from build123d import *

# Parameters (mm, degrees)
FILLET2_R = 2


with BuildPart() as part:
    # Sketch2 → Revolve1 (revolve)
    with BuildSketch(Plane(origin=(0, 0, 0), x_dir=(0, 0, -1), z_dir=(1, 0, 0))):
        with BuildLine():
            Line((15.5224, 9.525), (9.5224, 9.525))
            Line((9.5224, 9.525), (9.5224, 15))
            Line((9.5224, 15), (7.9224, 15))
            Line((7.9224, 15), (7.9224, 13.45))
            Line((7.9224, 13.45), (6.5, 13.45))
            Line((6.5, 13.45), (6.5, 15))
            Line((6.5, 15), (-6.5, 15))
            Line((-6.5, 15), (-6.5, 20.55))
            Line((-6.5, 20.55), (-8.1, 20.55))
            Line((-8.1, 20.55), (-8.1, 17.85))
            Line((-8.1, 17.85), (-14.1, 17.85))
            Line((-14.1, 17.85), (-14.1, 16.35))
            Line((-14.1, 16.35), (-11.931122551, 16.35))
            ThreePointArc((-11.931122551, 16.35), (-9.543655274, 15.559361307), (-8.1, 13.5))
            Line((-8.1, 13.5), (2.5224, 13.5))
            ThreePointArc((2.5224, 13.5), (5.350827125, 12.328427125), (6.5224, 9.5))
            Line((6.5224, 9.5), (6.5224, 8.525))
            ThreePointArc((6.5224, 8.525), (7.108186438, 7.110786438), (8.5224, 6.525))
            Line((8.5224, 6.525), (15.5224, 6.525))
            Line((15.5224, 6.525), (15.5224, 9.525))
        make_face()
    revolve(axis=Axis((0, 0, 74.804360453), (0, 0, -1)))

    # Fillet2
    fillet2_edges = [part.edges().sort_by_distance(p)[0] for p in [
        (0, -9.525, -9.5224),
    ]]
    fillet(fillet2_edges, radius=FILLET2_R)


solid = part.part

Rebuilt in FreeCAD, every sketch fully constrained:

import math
import FreeCAD as App
import Part
import Sketcher
from FreeCAD import Vector
Q = App.Units.Quantity


def edges_at(feature, points):
    """Names of the edges that pass closest to the given points."""
    edges = feature.Shape.Edges
    near = lambda p: min(range(len(edges)), key=lambda i: edges[i].distToShape(Part.Vertex(*p))[0])
    return sorted({f"Edge{near(p) + 1}" for p in points})

doc = App.newDocument("Part")
params = doc.addObject("Spreadsheet::Sheet", "Params")
for row, (alias, value) in enumerate([
    ("sketch1_radius", "4 mm"),
    ("sketch1_radius2", "2 mm"),
    ("sketch1_width", "3 mm"),
    ("sketch1_height", "6 mm"),
    ("sketch1_height2", "13 mm"),
    ("revolution_angle", "360 deg"),
    ("fillet_radius", "2 mm"),
], start=1):
    params.set(f"A{row}", alias)
    params.set(f"B{row}", "=" + value)
    params.setAlias(f"B{row}", alias)

body = doc.addObject("PartDesign::Body", "Body")

# Sketch on YZ plane
sketch1 = body.newObject("Sketcher::SketchObject", "Sketch")
sketch1.AttachmentSupport = (doc.getObject("YZ_Plane"), [""])
sketch1.MapMode = "FlatFace"
sketch1.addGeometry(Part.LineSegment(Vector(9.5, -15.5, 0), Vector(9.5, -9.5, 0)), False)
sketch1.addGeometry(Part.LineSegment(Vector(9.5, -9.5, 0), Vector(15, -9.5, 0)), False)
sketch1.addGeometry(Part.LineSegment(Vector(15, -9.5, 0), Vector(15, -7.9, 0)), False)
sketch1.addGeometry(Part.LineSegment(Vector(15, -7.9, 0), Vector(13.4, -7.9, 0)), False)
sketch1.addGeometry(Part.LineSegment(Vector(13.4, -7.9, 0), Vector(13.4, -6.5, 0)), False)
sketch1.addGeometry(Part.LineSegment(Vector(13.4, -6.5, 0), Vector(15, -6.5, 0)), False)
sketch1.addGeometry(Part.LineSegment(Vector(15, -6.5, 0), Vector(15, 6.5, 0)), False)
sketch1.addGeometry(Part.LineSegment(Vector(15, 6.5, 0), Vector(20.6, 6.5, 0)), False)
sketch1.addGeometry(Part.LineSegment(Vector(20.6, 6.5, 0), Vector(20.6, 8.1, 0)), False)
sketch1.addGeometry(Part.LineSegment(Vector(20.6, 8.1, 0), Vector(17.9, 8.1, 0)), False)
sketch1.addGeometry(Part.LineSegment(Vector(17.9, 8.1, 0), Vector(17.9, 14.1, 0)), False)
sketch1.addGeometry(Part.LineSegment(Vector(17.9, 14.1, 0), Vector(16.4, 14.1, 0)), False)
sketch1.addGeometry(Part.LineSegment(Vector(16.4, 14.1, 0), Vector(16.4, 11.9, 0)), False)
sketch1.addGeometry(Part.ArcOfCircle(Part.Circle(Vector(12.3, 11.9, 0), Vector(0, 0, 1), 4), math.radians(-73), math.radians(0)), False)
sketch1.addGeometry(Part.LineSegment(Vector(13.5, 8.1, 0), Vector(13.5, -2.5, 0)), False)
sketch1.addGeometry(Part.ArcOfCircle(Part.Circle(Vector(9.5, -2.5, 0), Vector(0, 0, 1), 4), math.radians(-90), math.radians(0)), False)
sketch1.addGeometry(Part.LineSegment(Vector(9.5, -6.5, 0), Vector(8.5, -6.5, 0)), False)
sketch1.addGeometry(Part.ArcOfCircle(Part.Circle(Vector(8.5, -8.5, 0), Vector(0, 0, 1), 2), math.radians(90), math.radians(180)), False)
sketch1.addGeometry(Part.LineSegment(Vector(6.5, -8.5, 0), Vector(6.5, -15.5, 0)), False)
sketch1.addGeometry(Part.LineSegment(Vector(6.5, -15.5, 0), Vector(9.5, -15.5, 0)), False)
sketch1.addConstraint(Sketcher.Constraint("Coincident", 0, 2, 1, 1))
sketch1.addConstraint(Sketcher.Constraint("Coincident", 1, 2, 2, 1))
sketch1.addConstraint(Sketcher.Constraint("Coincident", 2, 2, 3, 1))
sketch1.addConstraint(Sketcher.Constraint("Coincident", 3, 2, 4, 1))
sketch1.addConstraint(Sketcher.Constraint("Coincident", 4, 2, 5, 1))
sketch1.addConstraint(Sketcher.Constraint("Coincident", 5, 2, 6, 1))
sketch1.addConstraint(Sketcher.Constraint("Coincident", 6, 2, 7, 1))
sketch1.addConstraint(Sketcher.Constraint("Coincident", 7, 2, 8, 1))
sketch1.addConstraint(Sketcher.Constraint("Coincident", 8, 2, 9, 1))
sketch1.addConstraint(Sketcher.Constraint("Coincident", 9, 2, 10, 1))
sketch1.addConstraint(Sketcher.Constraint("Coincident", 10, 2, 11, 1))
sketch1.addConstraint(Sketcher.Constraint("Coincident", 11, 2, 12, 1))
sketch1.addConstraint(Sketcher.Constraint("Tangent", 12, 2, 13, 2))
sketch1.addConstraint(Sketcher.Constraint("Coincident", 13, 1, 14, 1))
sketch1.addConstraint(Sketcher.Constraint("Tangent", 14, 2, 15, 2))
sketch1.addConstraint(Sketcher.Constraint("Tangent", 15, 1, 16, 1))
sketch1.addConstraint(Sketcher.Constraint("Tangent", 16, 2, 17, 1))
sketch1.addConstraint(Sketcher.Constraint("Tangent", 17, 2, 18, 1))
sketch1.addConstraint(Sketcher.Constraint("Coincident", 18, 2, 19, 1))
sketch1.addConstraint(Sketcher.Constraint("Coincident", 19, 2, 0, 1))
sketch1.addConstraint(Sketcher.Constraint("Vertical", 0))
sketch1.addConstraint(Sketcher.Constraint("Horizontal", 1))
sketch1.addConstraint(Sketcher.Constraint("Vertical", 2))
sketch1.addConstraint(Sketcher.Constraint("Horizontal", 3))
sketch1.addConstraint(Sketcher.Constraint("Vertical", 4))
sketch1.addConstraint(Sketcher.Constraint("Horizontal", 5))
sketch1.addConstraint(Sketcher.Constraint("Vertical", 6))
sketch1.addConstraint(Sketcher.Constraint("Horizontal", 7))
sketch1.addConstraint(Sketcher.Constraint("Vertical", 8))
sketch1.addConstraint(Sketcher.Constraint("Horizontal", 9))
sketch1.addConstraint(Sketcher.Constraint("Vertical", 10))
sketch1.addConstraint(Sketcher.Constraint("Horizontal", 11))
sketch1.addConstraint(Sketcher.Constraint("Vertical", 12))
sketch1.addConstraint(Sketcher.Constraint("Vertical", 14))
sketch1.addConstraint(Sketcher.Constraint("Horizontal", 16))
sketch1.addConstraint(Sketcher.Constraint("Vertical", 18))
sketch1.addConstraint(Sketcher.Constraint("Horizontal", 19))
sketch1.addConstraint(Sketcher.Constraint("Equal", 13, 15))
sketch1.addConstraint(Sketcher.Constraint("Horizontal", 9, 2, 13, 1))
sketch1.addConstraint(Sketcher.Constraint("Vertical", 2, 2, 5, 2))
sketch1.addConstraint(Sketcher.Constraint("Equal", 2, 8))
sketch1.addConstraint(Sketcher.Constraint("Equal", 0, 10))
sketch1.addConstraint(Sketcher.Constraint("Radius", 13, Q("4 mm")))
sketch1.addConstraint(Sketcher.Constraint("Radius", 17, Q("2 mm")))
sketch1.addConstraint(Sketcher.Constraint("DistanceX", 19, 1, 19, 2, Q("3 mm")))
sketch1.addConstraint(Sketcher.Constraint("DistanceY", 0, 1, 0, 2, Q("6 mm")))
sketch1.addConstraint(Sketcher.Constraint("DistanceY", 6, 1, 6, 2, Q("13 mm")))
sketch1.addConstraint(Sketcher.Constraint("DistanceY", 18, 2, 18, 1, Q("7 mm")))
sketch1.addConstraint(Sketcher.Constraint("DistanceX", 9, 2, 9, 1, Q("2.7 mm")))
sketch1.addConstraint(Sketcher.Constraint("DistanceX", 11, 2, 11, 1, Q("1.5 mm")))
sketch1.addConstraint(Sketcher.Constraint("DistanceY", 2, 1, 2, 2, Q("1.6 mm")))
sketch1.addConstraint(Sketcher.Constraint("DistanceX", -1, 1, 1, 2, Q("15 mm")))
sketch1.addConstraint(Sketcher.Constraint("DistanceX", 3, 2, 3, 1, Q("1.55 mm")))
sketch1.addConstraint(Sketcher.Constraint("DistanceX", 7, 1, 7, 2, Q("5.55 mm")))
sketch1.addConstraint(Sketcher.Constraint("DistanceX", -1, 1, 15, 3, Q("9.5 mm")))
sketch1.addConstraint(Sketcher.Constraint("DistanceY", 4, 2, -1, 1, Q("6.5 mm")))
sketch1.addConstraint(Sketcher.Constraint("DistanceX", 1, 1, 1, 2, Q("5.475 mm")))
sketch1.addConstraint(Sketcher.Constraint("DistanceY", 4, 1, 4, 2, Q("1.4224 mm")))
sketch1.setExpression("Constraints[42]", "Params.sketch1_radius")
sketch1.setExpression("Constraints[43]", "Params.sketch1_radius2")
sketch1.setExpression("Constraints[44]", "Params.sketch1_width")
sketch1.setExpression("Constraints[45]", "Params.sketch1_height")
sketch1.setExpression("Constraints[46]", "Params.sketch1_height2")
revolution = body.newObject("PartDesign::Revolution", "Revolution")
revolution.Profile = sketch1
revolution.ReferenceAxis = (sketch1, ["V_Axis"])
revolution.setExpression("Angle", "Params.revolution_angle")
doc.recompute()

fillet = body.newObject("PartDesign::Fillet", "Fillet")
fillet.Base = (revolution, edges_at(revolution, [(0, -9.525, -9.522)]))
fillet.setExpression("Radius", "Params.fillet_radius")

doc.recompute()
